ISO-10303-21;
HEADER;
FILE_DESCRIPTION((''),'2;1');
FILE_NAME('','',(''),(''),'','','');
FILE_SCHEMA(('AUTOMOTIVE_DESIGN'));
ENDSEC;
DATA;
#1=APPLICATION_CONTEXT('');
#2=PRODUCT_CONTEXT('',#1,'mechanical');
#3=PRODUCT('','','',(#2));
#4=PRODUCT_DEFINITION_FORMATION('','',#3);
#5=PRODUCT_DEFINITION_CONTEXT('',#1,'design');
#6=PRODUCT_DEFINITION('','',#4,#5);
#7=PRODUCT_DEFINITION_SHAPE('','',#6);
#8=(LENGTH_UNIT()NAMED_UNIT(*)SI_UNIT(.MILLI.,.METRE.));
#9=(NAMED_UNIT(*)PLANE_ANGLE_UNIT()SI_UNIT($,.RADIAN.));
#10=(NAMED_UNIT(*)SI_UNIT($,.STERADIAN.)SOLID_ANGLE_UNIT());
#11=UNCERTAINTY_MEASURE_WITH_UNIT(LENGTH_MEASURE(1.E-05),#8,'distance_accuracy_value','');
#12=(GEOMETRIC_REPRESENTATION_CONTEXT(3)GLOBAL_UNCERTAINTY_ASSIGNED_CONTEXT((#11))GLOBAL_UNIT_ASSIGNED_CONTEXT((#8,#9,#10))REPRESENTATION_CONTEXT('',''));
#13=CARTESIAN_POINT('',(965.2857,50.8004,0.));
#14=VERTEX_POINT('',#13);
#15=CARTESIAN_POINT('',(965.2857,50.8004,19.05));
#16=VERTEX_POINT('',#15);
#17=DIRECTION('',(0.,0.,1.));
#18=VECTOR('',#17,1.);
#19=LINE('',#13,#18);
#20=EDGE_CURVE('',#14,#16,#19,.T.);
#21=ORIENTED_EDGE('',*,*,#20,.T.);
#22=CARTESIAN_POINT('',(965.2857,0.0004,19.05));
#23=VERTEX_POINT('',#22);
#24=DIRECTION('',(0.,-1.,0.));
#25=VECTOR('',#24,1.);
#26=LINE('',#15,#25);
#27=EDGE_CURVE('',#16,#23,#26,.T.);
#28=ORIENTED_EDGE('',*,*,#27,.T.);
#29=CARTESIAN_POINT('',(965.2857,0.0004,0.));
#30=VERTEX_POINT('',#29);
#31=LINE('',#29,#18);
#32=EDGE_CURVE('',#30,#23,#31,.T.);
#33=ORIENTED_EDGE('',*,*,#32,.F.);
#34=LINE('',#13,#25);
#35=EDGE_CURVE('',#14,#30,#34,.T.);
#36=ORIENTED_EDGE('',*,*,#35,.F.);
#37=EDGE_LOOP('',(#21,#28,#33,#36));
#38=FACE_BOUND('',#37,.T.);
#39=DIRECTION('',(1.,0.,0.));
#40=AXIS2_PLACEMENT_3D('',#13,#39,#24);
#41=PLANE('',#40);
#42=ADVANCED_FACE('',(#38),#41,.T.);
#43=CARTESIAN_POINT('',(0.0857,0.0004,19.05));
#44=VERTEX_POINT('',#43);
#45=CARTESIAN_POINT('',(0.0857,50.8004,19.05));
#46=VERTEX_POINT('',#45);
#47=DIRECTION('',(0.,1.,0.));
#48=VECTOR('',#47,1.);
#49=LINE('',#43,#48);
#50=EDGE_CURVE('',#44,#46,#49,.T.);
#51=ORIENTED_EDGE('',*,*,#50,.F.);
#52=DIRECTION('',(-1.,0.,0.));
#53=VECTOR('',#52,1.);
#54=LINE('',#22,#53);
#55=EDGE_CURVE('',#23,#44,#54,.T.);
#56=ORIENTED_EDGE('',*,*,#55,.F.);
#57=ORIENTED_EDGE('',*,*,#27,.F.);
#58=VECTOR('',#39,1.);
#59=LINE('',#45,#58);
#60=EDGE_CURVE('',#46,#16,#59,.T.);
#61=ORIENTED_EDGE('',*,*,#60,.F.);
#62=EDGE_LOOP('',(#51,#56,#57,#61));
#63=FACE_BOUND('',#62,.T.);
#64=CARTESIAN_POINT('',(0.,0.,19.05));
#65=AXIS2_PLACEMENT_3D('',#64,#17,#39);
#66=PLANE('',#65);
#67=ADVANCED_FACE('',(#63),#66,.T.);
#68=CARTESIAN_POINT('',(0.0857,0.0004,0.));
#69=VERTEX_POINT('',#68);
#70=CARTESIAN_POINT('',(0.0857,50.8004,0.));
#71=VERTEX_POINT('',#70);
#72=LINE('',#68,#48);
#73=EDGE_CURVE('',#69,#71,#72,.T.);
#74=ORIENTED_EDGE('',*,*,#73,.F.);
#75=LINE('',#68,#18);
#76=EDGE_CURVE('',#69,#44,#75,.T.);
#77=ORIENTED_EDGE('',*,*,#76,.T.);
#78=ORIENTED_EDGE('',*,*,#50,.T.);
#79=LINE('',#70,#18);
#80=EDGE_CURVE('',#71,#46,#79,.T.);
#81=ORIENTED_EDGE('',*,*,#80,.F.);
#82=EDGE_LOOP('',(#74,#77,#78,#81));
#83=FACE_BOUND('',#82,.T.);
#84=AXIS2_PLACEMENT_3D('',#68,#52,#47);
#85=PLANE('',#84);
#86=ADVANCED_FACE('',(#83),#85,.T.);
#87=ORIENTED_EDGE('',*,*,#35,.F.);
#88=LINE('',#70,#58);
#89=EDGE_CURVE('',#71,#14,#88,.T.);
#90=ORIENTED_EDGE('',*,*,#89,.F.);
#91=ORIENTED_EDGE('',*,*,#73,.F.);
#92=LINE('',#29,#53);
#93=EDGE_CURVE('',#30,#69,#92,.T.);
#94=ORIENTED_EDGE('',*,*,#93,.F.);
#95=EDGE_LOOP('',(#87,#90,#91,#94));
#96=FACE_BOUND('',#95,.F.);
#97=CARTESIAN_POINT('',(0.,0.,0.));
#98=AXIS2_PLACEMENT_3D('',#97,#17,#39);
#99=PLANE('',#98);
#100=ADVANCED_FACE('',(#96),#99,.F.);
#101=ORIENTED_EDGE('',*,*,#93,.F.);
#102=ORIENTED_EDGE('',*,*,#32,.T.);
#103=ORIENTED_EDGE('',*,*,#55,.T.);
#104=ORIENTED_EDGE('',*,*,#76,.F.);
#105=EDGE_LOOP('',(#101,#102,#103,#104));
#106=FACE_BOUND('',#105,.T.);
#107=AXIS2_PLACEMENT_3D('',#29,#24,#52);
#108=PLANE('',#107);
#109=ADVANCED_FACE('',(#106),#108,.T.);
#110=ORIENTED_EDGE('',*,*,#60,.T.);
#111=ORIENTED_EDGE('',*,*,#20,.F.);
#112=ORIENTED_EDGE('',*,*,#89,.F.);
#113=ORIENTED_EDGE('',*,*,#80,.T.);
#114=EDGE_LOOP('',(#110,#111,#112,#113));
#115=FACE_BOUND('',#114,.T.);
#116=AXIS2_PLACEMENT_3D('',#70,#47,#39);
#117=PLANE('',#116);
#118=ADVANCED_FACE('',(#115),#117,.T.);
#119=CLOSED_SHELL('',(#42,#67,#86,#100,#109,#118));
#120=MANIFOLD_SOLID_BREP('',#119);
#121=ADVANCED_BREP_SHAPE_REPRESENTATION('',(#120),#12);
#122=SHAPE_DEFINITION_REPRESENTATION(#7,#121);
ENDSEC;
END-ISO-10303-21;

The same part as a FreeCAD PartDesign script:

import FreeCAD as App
import Part
import Sketcher

V = App.Vector
Q = App.Units.Quantity


def add_polygon(sketch, points):
    """Adds a closed chain of lines whose ends are joined by coincident constraints."""
    first, n = sketch.GeometryCount, len(points)
    for a, b in zip(points, points[1:] + points[:1]):
        sketch.addGeometry(Part.LineSegment(App.Vector(*a, 0), App.Vector(*b, 0)), False)
    for i in range(n):
        sketch.addConstraint(Sketcher.Constraint("Coincident", first + i, 2, first + (i + 1) % n, 1))

doc = App.newDocument("Part")
body = doc.addObject("PartDesign::Body", "Body")

# Sketch on XY plane
sketch1 = body.newObject("Sketcher::SketchObject", "Sketch")
sketch1.AttachmentSupport = (doc.getObject("XY_Plane"), [""])
sketch1.MapMode = "FlatFace"
add_polygon(sketch1, [(0, 51), (0, 0), (965, 0), (965, 51)])  # lines 0-3
sketch1.addConstraint([
    Sketcher.Constraint("Vertical", 0),
    Sketcher.Constraint("Horizontal", 1),
    Sketcher.Constraint("Vertical", 2),
    Sketcher.Constraint("Horizontal", 3),
    Sketcher.Constraint("DistanceX", 1, 1, 1, 2, Q("38 in")),
    Sketcher.Constraint("DistanceY", 0, 2, 0, 1, Q("2 in")),
    Sketcher.Constraint("DistanceX", -1, 1, 0, 2, Q("0.0857 mm")),
    Sketcher.Constraint("DistanceY", -1, 1, 0, 2, Q("0.0004 mm")),
])
pad1 = body.newObject("PartDesign::Pad", "Pad")
pad1.Profile = sketch1
pad1.Length = Q("0.75 in")

doc.recompute()
